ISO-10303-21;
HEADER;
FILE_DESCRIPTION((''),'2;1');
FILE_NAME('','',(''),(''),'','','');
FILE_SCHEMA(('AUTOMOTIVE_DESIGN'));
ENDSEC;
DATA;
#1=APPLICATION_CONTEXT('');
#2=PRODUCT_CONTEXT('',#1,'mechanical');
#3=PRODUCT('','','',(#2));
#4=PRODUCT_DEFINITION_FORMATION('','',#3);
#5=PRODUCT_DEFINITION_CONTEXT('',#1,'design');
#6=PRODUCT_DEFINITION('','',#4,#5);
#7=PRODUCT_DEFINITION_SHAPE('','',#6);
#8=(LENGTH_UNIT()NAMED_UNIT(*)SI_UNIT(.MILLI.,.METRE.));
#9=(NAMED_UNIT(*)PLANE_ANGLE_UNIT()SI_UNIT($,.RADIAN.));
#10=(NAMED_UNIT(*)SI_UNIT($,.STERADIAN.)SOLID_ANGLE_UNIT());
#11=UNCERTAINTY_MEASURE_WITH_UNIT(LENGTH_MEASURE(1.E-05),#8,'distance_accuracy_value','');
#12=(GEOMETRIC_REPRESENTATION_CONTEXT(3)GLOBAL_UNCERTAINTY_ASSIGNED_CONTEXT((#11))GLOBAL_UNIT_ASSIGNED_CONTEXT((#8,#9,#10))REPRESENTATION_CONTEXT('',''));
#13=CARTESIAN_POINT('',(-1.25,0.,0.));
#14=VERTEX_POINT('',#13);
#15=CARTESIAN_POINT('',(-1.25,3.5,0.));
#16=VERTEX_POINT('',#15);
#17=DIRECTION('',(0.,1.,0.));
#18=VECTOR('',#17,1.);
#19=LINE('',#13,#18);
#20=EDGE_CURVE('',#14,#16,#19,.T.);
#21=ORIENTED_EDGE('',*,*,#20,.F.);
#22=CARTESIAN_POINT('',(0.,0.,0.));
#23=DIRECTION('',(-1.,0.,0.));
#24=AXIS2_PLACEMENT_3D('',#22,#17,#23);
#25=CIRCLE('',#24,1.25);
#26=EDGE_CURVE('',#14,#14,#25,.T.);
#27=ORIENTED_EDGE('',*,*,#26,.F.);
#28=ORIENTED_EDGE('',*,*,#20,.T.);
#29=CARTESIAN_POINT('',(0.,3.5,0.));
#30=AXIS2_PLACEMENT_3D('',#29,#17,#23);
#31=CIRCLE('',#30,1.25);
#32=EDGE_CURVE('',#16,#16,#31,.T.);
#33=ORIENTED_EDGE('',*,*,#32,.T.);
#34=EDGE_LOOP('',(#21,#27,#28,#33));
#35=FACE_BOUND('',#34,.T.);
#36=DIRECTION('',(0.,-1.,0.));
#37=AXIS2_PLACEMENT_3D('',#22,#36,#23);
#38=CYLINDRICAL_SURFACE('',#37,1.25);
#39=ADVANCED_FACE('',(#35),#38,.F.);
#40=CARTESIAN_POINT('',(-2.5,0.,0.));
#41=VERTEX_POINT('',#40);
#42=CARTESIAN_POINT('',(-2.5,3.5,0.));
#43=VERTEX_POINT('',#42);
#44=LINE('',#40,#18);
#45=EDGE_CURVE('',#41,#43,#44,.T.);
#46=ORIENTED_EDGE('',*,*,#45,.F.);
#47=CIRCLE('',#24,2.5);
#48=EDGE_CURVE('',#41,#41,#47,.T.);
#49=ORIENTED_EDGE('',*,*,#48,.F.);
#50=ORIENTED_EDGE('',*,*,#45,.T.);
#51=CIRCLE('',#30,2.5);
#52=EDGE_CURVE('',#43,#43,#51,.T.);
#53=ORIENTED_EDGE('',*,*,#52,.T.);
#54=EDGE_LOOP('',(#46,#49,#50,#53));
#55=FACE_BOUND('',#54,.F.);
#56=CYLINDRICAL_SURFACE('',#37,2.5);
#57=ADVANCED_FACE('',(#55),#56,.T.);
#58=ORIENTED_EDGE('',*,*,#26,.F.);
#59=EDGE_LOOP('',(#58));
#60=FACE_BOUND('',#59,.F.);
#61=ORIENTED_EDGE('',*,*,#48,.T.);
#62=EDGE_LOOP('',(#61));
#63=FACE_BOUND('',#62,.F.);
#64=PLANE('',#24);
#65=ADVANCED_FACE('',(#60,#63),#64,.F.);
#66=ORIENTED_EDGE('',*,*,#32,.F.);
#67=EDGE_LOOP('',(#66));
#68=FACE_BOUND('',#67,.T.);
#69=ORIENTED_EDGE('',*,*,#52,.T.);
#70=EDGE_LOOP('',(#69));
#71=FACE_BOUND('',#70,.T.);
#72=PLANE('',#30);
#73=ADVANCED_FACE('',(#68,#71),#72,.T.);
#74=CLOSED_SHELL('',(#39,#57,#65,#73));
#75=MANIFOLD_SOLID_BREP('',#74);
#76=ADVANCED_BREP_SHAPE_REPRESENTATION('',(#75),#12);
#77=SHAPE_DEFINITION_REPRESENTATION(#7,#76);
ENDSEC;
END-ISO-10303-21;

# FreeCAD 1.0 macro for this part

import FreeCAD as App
import Part
import Sketcher

V = App.Vector

doc = App.newDocument("Part")
body = doc.addObject("PartDesign::Body", "Body")

# Sketch on XZ plane
sketch1 = body.newObject("Sketcher::SketchObject", "Sketch")
sketch1.AttachmentSupport = (doc.getObject("XZ_Plane"), [""])
sketch1.MapMode = "FlatFace"
sketch1.addGeometry(Part.Circle(V(0, 0, 0), V(0, 0, 1), 2.5), False)
sketch1.addGeometry(Part.Circle(V(0, 0, 0), V(0, 0, 1), 1.25), False)
sketch1.addConstraint(Sketcher.Constraint("Coincident", 0, 3, -1, 1))
sketch1.addConstraint(Sketcher.Constraint("Coincident", 1, 3, -1, 1))
sketch1.addConstraint(Sketcher.Constraint("Diameter", 0, 5.0))
sketch1.addConstraint(Sketcher.Constraint("Diameter", 1, 2.5))
pad1 = body.newObject("PartDesign::Pad", "Pad")
pad1.Profile = sketch1
pad1.Length = 3.5
pad1.Reversed = True

doc.recompute()
